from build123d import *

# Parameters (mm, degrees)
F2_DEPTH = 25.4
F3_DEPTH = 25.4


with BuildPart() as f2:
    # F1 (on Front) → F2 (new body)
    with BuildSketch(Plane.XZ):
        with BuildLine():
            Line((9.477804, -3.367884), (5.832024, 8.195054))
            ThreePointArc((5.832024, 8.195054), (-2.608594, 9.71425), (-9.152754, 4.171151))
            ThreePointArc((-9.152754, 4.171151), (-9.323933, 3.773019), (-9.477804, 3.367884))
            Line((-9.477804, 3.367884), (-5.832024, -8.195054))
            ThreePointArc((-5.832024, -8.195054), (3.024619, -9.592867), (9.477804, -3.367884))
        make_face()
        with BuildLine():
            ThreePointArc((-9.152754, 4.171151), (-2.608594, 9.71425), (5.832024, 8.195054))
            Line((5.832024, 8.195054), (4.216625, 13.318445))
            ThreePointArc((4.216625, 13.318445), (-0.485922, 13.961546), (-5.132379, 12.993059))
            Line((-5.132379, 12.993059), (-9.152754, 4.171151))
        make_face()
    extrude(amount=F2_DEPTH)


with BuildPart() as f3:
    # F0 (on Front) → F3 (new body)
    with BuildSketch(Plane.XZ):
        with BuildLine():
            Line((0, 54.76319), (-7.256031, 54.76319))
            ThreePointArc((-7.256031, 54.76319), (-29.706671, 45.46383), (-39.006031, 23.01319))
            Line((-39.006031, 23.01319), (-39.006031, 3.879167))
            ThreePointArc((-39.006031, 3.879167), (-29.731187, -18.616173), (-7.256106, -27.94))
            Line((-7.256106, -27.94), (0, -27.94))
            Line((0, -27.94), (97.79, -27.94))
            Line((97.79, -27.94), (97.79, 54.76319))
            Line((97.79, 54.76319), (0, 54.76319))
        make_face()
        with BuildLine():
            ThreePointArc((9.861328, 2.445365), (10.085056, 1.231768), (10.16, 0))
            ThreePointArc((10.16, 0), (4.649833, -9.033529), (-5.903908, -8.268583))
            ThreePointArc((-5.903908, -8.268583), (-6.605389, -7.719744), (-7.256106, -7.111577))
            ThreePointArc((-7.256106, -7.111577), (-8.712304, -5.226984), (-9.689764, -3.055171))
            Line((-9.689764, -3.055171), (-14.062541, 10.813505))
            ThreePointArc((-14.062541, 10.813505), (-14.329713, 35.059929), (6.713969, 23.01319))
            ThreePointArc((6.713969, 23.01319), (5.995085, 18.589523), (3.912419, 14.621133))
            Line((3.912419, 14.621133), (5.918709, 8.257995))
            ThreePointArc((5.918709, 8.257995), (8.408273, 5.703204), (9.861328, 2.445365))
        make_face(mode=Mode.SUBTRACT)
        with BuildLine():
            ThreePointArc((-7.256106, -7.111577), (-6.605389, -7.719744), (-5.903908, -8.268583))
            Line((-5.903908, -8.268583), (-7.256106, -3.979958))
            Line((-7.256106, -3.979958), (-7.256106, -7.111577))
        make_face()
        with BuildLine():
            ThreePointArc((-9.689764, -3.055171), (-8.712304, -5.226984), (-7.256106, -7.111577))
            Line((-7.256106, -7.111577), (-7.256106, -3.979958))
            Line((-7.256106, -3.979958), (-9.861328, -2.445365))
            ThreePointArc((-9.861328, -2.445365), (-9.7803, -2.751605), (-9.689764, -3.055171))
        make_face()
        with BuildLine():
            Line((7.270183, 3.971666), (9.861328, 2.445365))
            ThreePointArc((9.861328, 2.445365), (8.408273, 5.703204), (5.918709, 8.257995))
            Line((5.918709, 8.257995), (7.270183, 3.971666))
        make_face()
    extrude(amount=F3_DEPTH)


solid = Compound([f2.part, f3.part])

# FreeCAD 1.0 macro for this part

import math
import FreeCAD as App
import Part
import Sketcher
Q = App.Units.Quantity

doc = App.newDocument("Part")
body = doc.addObject("PartDesign::Body", "Body")

# Sketch on XZ plane
sketch1 = body.newObject("Sketcher::SketchObject", "Sketch")
sketch1.AttachmentSupport = (doc.getObject("XZ_Plane"), [""])
sketch1.MapMode = "FlatFace"
sketch1.addGeometry([
    Part.LineSegment(App.Vector(9.477804, -3.367884, 0), App.Vector(5.832024, 8.195054, 0)),  # 0
    Part.LineSegment(App.Vector(5.832024, 8.195054, 0), App.Vector(4.216625, 13.318445, 0)),  # 1
    Part.ArcOfCircle(Part.Circle(App.Vector(0.000001, -0.000008, 0), App.Vector(0, 0, 1), 13.970008), math.radians(72.432205), math.radians(111.554471)),  # 2
    Part.LineSegment(App.Vector(-5.132379, 12.993059, 0), App.Vector(-9.152754, 4.171151, 0)),  # 3
    Part.ArcOfCircle(Part.Circle(App.Vector(0.000491, -0.000202, 0), App.Vector(0, 0, 1), 10.05893), math.radians(155.500111), math.radians(160.437472)),  # 4
    Part.LineSegment(App.Vector(-9.477804, 3.367884, 0), App.Vector(-5.832024, -8.195054, 0)),  # 5
    Part.ArcOfCircle(Part.Circle(App.Vector(0, -0.000001, 0), App.Vector(0, 0, 1), 10.0584), math.radians(-125.437623), math.radians(-19.562379)),  # 6
], False)
sketch1.addConstraint([
    Sketcher.Constraint("Coincident", 0, 2, 1, 1),
    Sketcher.Constraint("Coincident", 1, 2, 2, 1),
    Sketcher.Constraint("Coincident", 2, 2, 3, 1),
    Sketcher.Constraint("Coincident", 3, 2, 4, 1),
    Sketcher.Constraint("Coincident", 4, 2, 5, 1),
    Sketcher.Constraint("Coincident", 5, 2, 6, 1),
    Sketcher.Constraint("Coincident", 6, 2, 0, 1),
    Sketcher.Constraint("Coincident", 2, 3, -1, 1),
    Sketcher.Constraint("Coincident", 6, 3, -1, 1),
    Sketcher.Constraint("Radius", 6, Q("0.396 in")),
    Sketcher.Constraint("Radius", 4, Q("10.05893 mm")),
    Sketcher.Constraint("Radius", 2, Q("13.970008 mm")),
    Sketcher.Constraint("DistanceY", 4, 3, -1, 1, Q("0.000202 mm")),
    Sketcher.Constraint("DistanceX", 1, 2, 0, 2, Q("1.615399 mm")),
    Sketcher.Constraint("DistanceX", -1, 1, 4, 3, Q("0.000491 mm")),
    Sketcher.Constraint("DistanceX", 2, 2, -1, 1, Q("5.132379 mm")),
    Sketcher.Constraint("DistanceY", -1, 1, 3, 2, Q("4.171151 mm")),
    Sketcher.Constraint("DistanceY", 0, 2, 1, 2, Q("5.123391 mm")),
    Sketcher.Constraint("DistanceX", 4, 2, 3, 2, Q("0.32505 mm")),
    Sketcher.Constraint("DistanceX", 4, 2, 5, 2, Q("3.64578 mm")),
    Sketcher.Constraint("DistanceX", 0, 2, 6, 2, Q("3.64578 mm")),
    Sketcher.Constraint("DistanceY", 6, 2, 0, 2, Q("11.562938 mm")),
])
pad1 = body.newObject("PartDesign::Pad", "Pad")
pad1.Profile = sketch1
pad1.Length = Q("1 in")
body2 = doc.addObject("PartDesign::Body", "Body001")

# Sketch on XZ plane
sketch2 = body2.newObject("Sketcher::SketchObject", "Sketch001")
sketch2.AttachmentSupport = (doc.getObject("XZ_Plane001"), [""])
sketch2.MapMode = "FlatFace"
sketch2.addGeometry([
    Part.ArcOfCircle(Part.Circle(App.Vector(-7.25603, 23.013189, 0), App.Vector(0, 0, 1), 31.750001), math.radians(90.000002), math.radians(179.999998)),  # 0
    Part.LineSegment(App.Vector(-39.006031, 23.01319, 0), App.Vector(-39.006031, 3.879167, 0)),  # 1
    Part.ArcOfCircle(Part.Circle(App.Vector(-7.256106, 3.810001, 0), App.Vector(0, 0, 1), 31.750001), math.radians(179.875183), math.radians(270)),  # 2
    Part.LineSegment(App.Vector(-7.256106, -27.94, 0), App.Vector(97.79, -27.94, 0)),  # 3
    Part.LineSegment(App.Vector(97.79, -27.94, 0), App.Vector(97.79, 54.76319, 0)),  # 4
    Part.LineSegment(App.Vector(97.79, 54.76319, 0), App.Vector(-7.256031, 54.76319, 0)),  # 5
    Part.ArcOfCircle(Part.Circle(App.Vector(0.000046, 0.000006, 0), App.Vector(0, 0, 1), 10.159954), math.radians(-0.000032), math.radians(13.927036)),  # 6
    Part.ArcOfCircle(Part.Circle(App.Vector(0, 0, 0), App.Vector(0, 0, 1), 10.16), math.radians(-125.527476), math.radians(-0.000002)),  # 7
    Part.LineSegment(App.Vector(-5.903908, -8.268583, 0), App.Vector(-7.256106, -3.979958, 0)),  # 8
    Part.LineSegment(App.Vector(-7.256106, -3.979958, 0), App.Vector(-9.861328, -2.445365, 0)),  # 9
    Part.ArcOfCircle(Part.Circle(App.Vector(-0.000011, 0, 0), App.Vector(0, 0, 1), 10.159989), math.radians(-166.072981), math.radians(-162.499981)),  # 10
    Part.LineSegment(App.Vector(-9.689764, -3.055171, 0), App.Vector(-14.062541, 10.813505, 0)),  # 11
    Part.ArcOfCircle(Part.Circle(App.Vector(-7.256031, 23.01319, 0), App.Vector(0, 0, 1), 13.97), math.radians(0), math.radians(240.841757)),  # 12
    Part.ArcOfCircle(Part.Circle(App.Vector(-7.256026, 23.013189, 0), App.Vector(0, 0, 1), 13.969995), math.radians(-36.921482), math.radians(0.000005)),  # 13
    Part.LineSegment(App.Vector(3.912419, 14.621133, 0), App.Vector(5.918709, 8.257995, 0)),  # 14
    Part.LineSegment(App.Vector(5.918709, 8.257995, 0), App.Vector(7.270183, 3.971666, 0)),  # 15
    Part.LineSegment(App.Vector(7.270183, 3.971666, 0), App.Vector(9.861328, 2.445365, 0)),  # 16
], False)
sketch2.addConstraint([
    Sketcher.Constraint("Coincident", 0, 2, 1, 1),
    Sketcher.Constraint("Coincident", 1, 2, 2, 1),
    Sketcher.Constraint("Coincident", 2, 2, 3, 1),
    Sketcher.Constraint("Coincident", 3, 2, 4, 1),
    Sketcher.Constraint("Coincident", 4, 2, 5, 1),
    Sketcher.Constraint("Coincident", 5, 2, 0, 1),
    Sketcher.Constraint("Coincident", 6, 1, 7, 2),
    Sketcher.Constraint("Coincident", 7, 1, 8, 1),
    Sketcher.Constraint("Coincident", 8, 2, 9, 1),
    Sketcher.Constraint("Coincident", 9, 2, 10, 1),
    Sketcher.Constraint("Coincident", 10, 2, 11, 1),
    Sketcher.Constraint("Coincident", 11, 2, 12, 2),
    Sketcher.Constraint("Coincident", 12, 1, 13, 2),
    Sketcher.Constraint("Coincident", 13, 1, 14, 1),
    Sketcher.Constraint("Coincident", 14, 2, 15, 1),
    Sketcher.Constraint("Coincident", 15, 2, 16, 1),
    Sketcher.Constraint("Coincident", 16, 2, 6, 2),
    Sketcher.Constraint("Vertical", 1),
    Sketcher.Constraint("Horizontal", 3),
    Sketcher.Constraint("Vertical", 4),
    Sketcher.Constraint("Horizontal", 5),
    Sketcher.Constraint("Coincident", 7, 3, -1, 1),
    Sketcher.Constraint("Coincident", 12, 3, 0, 3),
    Sketcher.Constraint("Coincident", 13, 3, 0, 3),
    Sketcher.Constraint("PointOnObject", 10, 3, -1),
    Sketcher.Constraint("PointOnObject", 6, 1, -1),
    Sketcher.Constraint("Radius", 7, Q("0.4 in")),
    Sketcher.Constraint("Radius", 0, Q("1.25 in")),
    Sketcher.Constraint("Radius", 2, Q("1.25 in")),
    Sketcher.Constraint("Radius", 12, Q("0.55 in")),
    Sketcher.Constraint("DistanceY", 2, 2, -1, 1, Q("1.1 in")),
    Sketcher.Constraint("DistanceX", -1, 1, 3, 2, Q("3.85 in")),
    Sketcher.Constraint("DistanceX", 0, 2, 5, 2, Q("1.25 in")),
    Sketcher.Constraint("DistanceY", 0, 2, 5, 2, Q("1.25 in")),
    Sketcher.Constraint("Radius", 10, Q("10.159989 mm")),
    Sketcher.Constraint("Radius", 6, Q("10.159954 mm")),
    Sketcher.Constraint("Distance", 9, Q("3.0236 mm")),
    Sketcher.Constraint("DistanceX", 5, 2, 5, 1, Q("105.046031 mm")),
    Sketcher.Constraint("DistanceY", 4, 1, 4, 2, Q("82.70319 mm")),
    Sketcher.Constraint("DistanceX", 8, 2, 7, 1, Q("1.352198 mm")),
    Sketcher.Constraint("DistanceY", 16, 2, 15, 2, Q("1.526301 mm")),
    Sketcher.Constraint("Distance", 8, Q("4.496748 mm")),
    Sketcher.Constraint("Distance", 11, Q("14.541711 mm")),
    Sketcher.Constraint("Distance", 15, Q("4.494341 mm")),
    Sketcher.Constraint("DistanceX", 3, 1, 3, 2, Q("105.046106 mm")),
    Sketcher.Constraint("DistanceY", 1, 2, 1, 1, Q("19.134023 mm")),
    Sketcher.Constraint("DistanceY", 10, 2, -1, 1, Q("3.055171 mm")),
    Sketcher.Constraint("DistanceX", 11, 2, -1, 1, Q("14.062541 mm")),
    Sketcher.Constraint("DistanceY", -1, 1, 12, 1, Q("23.01319 mm")),
    Sketcher.Constraint("DistanceX", -1, 1, 13, 1, Q("3.912419 mm")),
    Sketcher.Constraint("DistanceX", -1, 1, 14, 2, Q("5.918709 mm")),
    Sketcher.Constraint("DistanceY", 7, 1, 6, 3, Q("8.268589 mm")),
    Sketcher.Constraint("DistanceY", 8, 2, 2, 3, Q("7.789959 mm")),
    Sketcher.Constraint("DistanceY", 6, 3, 14, 2, Q("8.257989 mm")),
    Sketcher.Constraint("DistanceY", 15, 2, 14, 2, Q("4.286329 mm")),
])
pad2 = body2.newObject("PartDesign::Pad", "Pad001")
pad2.Profile = sketch2
pad2.Length = Q("1 in")

doc.recompute()
